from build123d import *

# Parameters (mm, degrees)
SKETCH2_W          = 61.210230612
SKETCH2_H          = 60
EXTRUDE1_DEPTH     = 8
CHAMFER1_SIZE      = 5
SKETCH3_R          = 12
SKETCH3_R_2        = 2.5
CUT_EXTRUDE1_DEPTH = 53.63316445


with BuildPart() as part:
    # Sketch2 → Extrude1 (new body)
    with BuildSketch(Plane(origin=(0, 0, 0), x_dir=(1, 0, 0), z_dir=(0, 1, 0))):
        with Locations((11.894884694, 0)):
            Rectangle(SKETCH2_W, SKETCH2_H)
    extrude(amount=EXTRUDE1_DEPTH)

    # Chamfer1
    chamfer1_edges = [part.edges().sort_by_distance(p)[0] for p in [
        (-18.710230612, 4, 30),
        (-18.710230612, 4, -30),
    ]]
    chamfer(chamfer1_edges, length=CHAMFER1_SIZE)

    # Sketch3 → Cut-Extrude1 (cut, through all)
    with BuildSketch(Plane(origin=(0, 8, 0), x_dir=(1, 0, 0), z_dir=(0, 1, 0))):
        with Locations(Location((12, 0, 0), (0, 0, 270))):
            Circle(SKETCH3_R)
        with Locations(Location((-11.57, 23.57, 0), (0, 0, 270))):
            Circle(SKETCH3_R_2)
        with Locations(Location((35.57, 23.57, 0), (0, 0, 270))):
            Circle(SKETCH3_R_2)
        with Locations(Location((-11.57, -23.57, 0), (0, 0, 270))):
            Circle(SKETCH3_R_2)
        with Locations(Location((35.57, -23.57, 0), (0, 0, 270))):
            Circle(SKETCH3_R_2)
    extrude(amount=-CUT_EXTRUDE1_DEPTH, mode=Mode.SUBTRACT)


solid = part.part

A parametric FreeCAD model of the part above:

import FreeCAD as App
import Part
import Sketcher

V = App.Vector


def edges_at(feature, points):
    """Names of the edges that pass closest to the given points."""
    edges = feature.Shape.Edges
    near = lambda p: min(range(len(edges)), key=lambda i: edges[i].distToShape(Part.Vertex(*p))[0])
    return sorted({f"Edge{near(p) + 1}" for p in points})


def add_polygon(sketch, points):
    """Adds a closed chain of lines whose ends are joined by coincident constraints."""
    first, n = sketch.GeometryCount, len(points)
    for a, b in zip(points, points[1:] + points[:1]):
        sketch.addGeometry(Part.LineSegment(App.Vector(*a, 0), App.Vector(*b, 0)), False)
    for i in range(n):
        sketch.addConstraint(Sketcher.Constraint("Coincident", first + i, 2, first + (i + 1) % n, 1))

doc = App.newDocument("Part")
body = doc.addObject("PartDesign::Body", "Body")

sketch1 = body.newObject("Sketcher::SketchObject", "Sketch")
sketch1.AttachmentSupport = (doc.getObject("XZ_Plane"), [""])
sketch1.MapMode = "FlatFace"
add_polygon(sketch1, [(-18.710231, -30), (-18.710231, 30), (42.5, 30), (42.5, -30)])
sketch1.addConstraint([
    Sketcher.Constraint("Vertical", 0),
    Sketcher.Constraint("Horizontal", 1),
    Sketcher.Constraint("Vertical", 2),
    Sketcher.Constraint("Horizontal", 3),
    Sketcher.Constraint("DistanceY", 0, 1, 0, 2, 60.0),
    Sketcher.Constraint("DistanceY", -1, 1, 0, 2, 30.0),
    Sketcher.Constraint("DistanceX", -1, 1, 1, 2, 42.5),
    Sketcher.Constraint("DistanceX", 1, 1, 1, 2, 61.210231),
])
pad1 = body.newObject("PartDesign::Pad", "Pad")
pad1.Profile = sketch1
pad1.Length = 8
pad1.Reversed = True
doc.recompute()

chamfer = body.newObject("PartDesign::Chamfer", "Chamfer")
chamfer.Base = (pad1, edges_at(pad1, [(-18.71, 4, 30), (-18.71, 4, -30)]))
chamfer.Size = 5

sketch2 = body.newObject("Sketcher::SketchObject", "Sketch001")
sketch2.AttachmentSupport = (doc.getObject("XZ_Plane"), [""])
sketch2.MapMode = "FlatFace"
sketch2.AttachmentOffset = App.Placement(V(0, 0, -8), App.Rotation())
sketch2.addGeometry([
    Part.Circle(V(12, 0, 0), V(0, 0, 1), 12),
    Part.Circle(V(-11.57, -23.57, 0), V(0, 0, 1), 2.5),
    Part.Circle(V(35.57, -23.57, 0), V(0, 0, 1), 2.5),
    Part.Circle(V(-11.57, 23.57, 0), V(0, 0, 1), 2.5),
    Part.Circle(V(35.57, 23.57, 0), V(0, 0, 1), 2.5),
], False)
sketch2.addConstraint([
    Sketcher.Constraint("Equal", 1, 2),
    Sketcher.Constraint("Equal", 2, 3),
    Sketcher.Constraint("Equal", 3, 4),
    Sketcher.Constraint("Symmetric", 1, 3, 3, 3, -1),
    Sketcher.Constraint("Symmetric", 2, 3, 4, 3, -1),
    Sketcher.Constraint("PointOnObject", 0, 3, -1),
    Sketcher.Constraint("Horizontal", 1, 3, 2, 3),
    Sketcher.Constraint("Diameter", 0, 24.0),
    Sketcher.Constraint("Diameter", 1, 5.0),
    Sketcher.Constraint("DistanceX", -1, 1, 0, 3, 12.0),
    Sketcher.Constraint("DistanceX", 1, 3, -1, 1, 11.57),
    Sketcher.Constraint("DistanceY", 1, 3, -1, 1, 23.57),
    Sketcher.Constraint("DistanceX", -1, 1, 2, 3, 35.57),
])
pocket1 = body.newObject("PartDesign::Pocket", "Pocket")
pocket1.Profile = sketch2
pocket1.Type = "ThroughAll"
pocket1.Reversed = True

doc.recompute()
